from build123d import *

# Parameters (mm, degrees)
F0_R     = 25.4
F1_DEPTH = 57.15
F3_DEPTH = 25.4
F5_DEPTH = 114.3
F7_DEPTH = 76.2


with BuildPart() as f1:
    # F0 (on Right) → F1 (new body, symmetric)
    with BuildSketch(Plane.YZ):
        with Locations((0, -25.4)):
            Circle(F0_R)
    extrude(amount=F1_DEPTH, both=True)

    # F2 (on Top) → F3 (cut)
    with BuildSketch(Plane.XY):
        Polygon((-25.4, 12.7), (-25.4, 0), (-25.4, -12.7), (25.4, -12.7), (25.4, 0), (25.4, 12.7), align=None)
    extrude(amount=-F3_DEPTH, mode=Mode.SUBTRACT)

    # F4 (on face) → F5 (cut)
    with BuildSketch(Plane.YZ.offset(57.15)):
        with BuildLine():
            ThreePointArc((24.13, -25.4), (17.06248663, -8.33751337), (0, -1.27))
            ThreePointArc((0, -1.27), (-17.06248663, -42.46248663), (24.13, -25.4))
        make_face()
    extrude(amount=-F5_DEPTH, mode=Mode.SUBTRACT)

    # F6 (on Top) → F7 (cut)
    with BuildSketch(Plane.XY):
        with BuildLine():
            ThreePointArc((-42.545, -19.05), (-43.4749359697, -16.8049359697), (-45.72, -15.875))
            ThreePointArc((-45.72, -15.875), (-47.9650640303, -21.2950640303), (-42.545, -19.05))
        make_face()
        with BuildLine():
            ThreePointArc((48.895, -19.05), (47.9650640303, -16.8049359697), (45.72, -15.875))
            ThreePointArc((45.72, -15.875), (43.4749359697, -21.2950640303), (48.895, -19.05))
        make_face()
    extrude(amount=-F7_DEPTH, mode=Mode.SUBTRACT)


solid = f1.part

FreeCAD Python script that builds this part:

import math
import FreeCAD as App
import Part
import Sketcher

V = App.Vector
Q = App.Units.Quantity

doc = App.newDocument("Part")
params = doc.addObject("Spreadsheet::Sheet", "Params")
for row, (alias, value) in enumerate([
    ("sketch1_diameter", "2 in"),
    ("pad1_length", "4.5 in"),
    ("sketch2_width", "2 in"),
    ("sketch2_height", "1 in"),
    ("pocket1_length", "1 in"),
    ("sketch3_radius", "0.95 in"),
    ("pocket2_length", "4.5 in"),
    ("sketch4_radius", "0.125 in"),
    ("pocket3_length", "3 in"),
], start=1):
    params.set(f"A{row}", alias)
    params.set(f"B{row}", "=" + value)
    params.setAlias(f"B{row}", alias)

body = doc.addObject("PartDesign::Body", "Body")

sketch1 = body.newObject("Sketcher::SketchObject", "Sketch")
sketch1.AttachmentSupport = (doc.getObject("YZ_Plane"), [""])
sketch1.MapMode = "FlatFace"
sketch1.addGeometry(Part.Circle(V(0, -25, 0), V(0, 0, 1), 25), False)
sketch1.addConstraint(Sketcher.Constraint("PointOnObject", 0, 3, -2))
sketch1.addConstraint(Sketcher.Constraint("Diameter", 0, Q("2 in")))
sketch1.addConstraint(Sketcher.Constraint("DistanceY", 0, 3, -1, 1, Q("1 in")))
sketch1.setExpression("Constraints[1]", "Params.sketch1_diameter")
pad1 = body.newObject("PartDesign::Pad", "Pad")
pad1.Profile = sketch1
pad1.setExpression("Length", "Params.pad1_length")
pad1.Midplane = True

sketch2 = body.newObject("Sketcher::SketchObject", "Sketch001")
sketch2.AttachmentSupport = (doc.getObject("XY_Plane"), [""])
sketch2.MapMode = "FlatFace"
sketch2.addGeometry(Part.LineSegment(V(-25, 13, 0), V(-25, -13, 0)), False)
sketch2.addGeometry(Part.LineSegment(V(-25, -13, 0), V(25, -13, 0)), False)
sketch2.addGeometry(Part.LineSegment(V(25, -13, 0), V(25, 13, 0)), False)
sketch2.addGeometry(Part.LineSegment(V(25, 13, 0), V(-25, 13, 0)), False)
sketch2.addConstraint(Sketcher.Constraint("Coincident", 0, 2, 1, 1))
sketch2.addConstraint(Sketcher.Constraint("Coincident", 1, 2, 2, 1))
sketch2.addConstraint(Sketcher.Constraint("Coincident", 2, 2, 3, 1))
sketch2.addConstraint(Sketcher.Constraint("Coincident", 3, 2, 0, 1))
sketch2.addConstraint(Sketcher.Constraint("Vertical", 0))
sketch2.addConstraint(Sketcher.Constraint("Horizontal", 1))
sketch2.addConstraint(Sketcher.Constraint("Vertical", 2))
sketch2.addConstraint(Sketcher.Constraint("Horizontal", 3))
sketch2.addConstraint(Sketcher.Constraint("Symmetric", 0, 2, 2, 2, -1, 1))
sketch2.addConstraint(Sketcher.Constraint("DistanceX", 1, 1, 1, 2, Q("2 in")))
sketch2.addConstraint(Sketcher.Constraint("DistanceY", 0, 2, 0, 1, Q("1 in")))
sketch2.setExpression("Constraints[9]", "Params.sketch2_width")
sketch2.setExpression("Constraints[10]", "Params.sketch2_height")
pocket1 = body.newObject("PartDesign::Pocket", "Pocket")
pocket1.Profile = sketch2
pocket1.setExpression("Length", "Params.pocket1_length")

sketch3 = body.newObject("Sketcher::SketchObject", "Sketch002")
sketch3.AttachmentSupport = (doc.getObject("YZ_Plane"), [""])
sketch3.MapMode = "FlatFace"
sketch3.AttachmentOffset = App.Placement(V(0, 0, 2.25 * 25.4), App.Rotation())
sketch3.addGeometry(Part.ArcOfCircle(Part.Circle(V(0, -25, 0), V(0, 0, 1), 24), math.radians(0), math.radians(90)), False)
sketch3.addGeometry(Part.ArcOfCircle(Part.Circle(V(0, -25, 0), V(0, 0, 1), 24), math.radians(90), math.radians(360)), False)
sketch3.addConstraint(Sketcher.Constraint("Tangent", 0, 1, 1, 2))
sketch3.addConstraint(Sketcher.Constraint("Coincident", 1, 1, 0, 2))
sketch3.addConstraint(Sketcher.Constraint("PointOnObject", 0, 3, -2))
sketch3.addConstraint(Sketcher.Constraint("PointOnObject", 1, 1, -2))
sketch3.addConstraint(Sketcher.Constraint("Horizontal", 1, 3, 0, 1))
sketch3.addConstraint(Sketcher.Constraint("Radius", 0, Q("0.95 in")))
sketch3.addConstraint(Sketcher.Constraint("DistanceY", 0, 3, -1, 1, Q("1 in")))
sketch3.setExpression("Constraints[5]", "Params.sketch3_radius")
pocket2 = body.newObject("PartDesign::Pocket", "Pocket001")
pocket2.Profile = sketch3
pocket2.setExpression("Length", "Params.pocket2_length")

sketch4 = body.newObject("Sketcher::SketchObject", "Sketch003")
sketch4.AttachmentSupport = (doc.getObject("XY_Plane"), [""])
sketch4.MapMode = "FlatFace"
sketch4.addGeometry(Part.ArcOfCircle(Part.Circle(V(-45.7, -19.1, 0), V(0, 0, 1), 3.2), math.radians(0), math.radians(90)), False)
sketch4.addGeometry(Part.ArcOfCircle(Part.Circle(V(-45.7, -19.1, 0), V(0, 0, 1), 3.2), math.radians(90), math.radians(360)), False)
sketch4.addGeometry(Part.ArcOfCircle(Part.Circle(V(45.7, -19.1, 0), V(0, 0, 1), 3.2), math.radians(0), math.radians(90)), False)
sketch4.addGeometry(Part.ArcOfCircle(Part.Circle(V(45.7, -19.1, 0), V(0, 0, 1), 3.2), math.radians(90), math.radians(360)), False)
sketch4.addConstraint(Sketcher.Constraint("Tangent", 0, 1, 1, 2))
sketch4.addConstraint(Sketcher.Constraint("Coincident", 1, 1, 0, 2))
sketch4.addConstraint(Sketcher.Constraint("Tangent", 2, 1, 3, 2))
sketch4.addConstraint(Sketcher.Constraint("Coincident", 3, 1, 2, 2))
sketch4.addConstraint(Sketcher.Constraint("Equal", 1, 2))
sketch4.addConstraint(Sketcher.Constraint("Symmetric", 0, 3, 2, 3, -2))
sketch4.addConstraint(Sketcher.Constraint("Horizontal", 3, 3, 0, 1))
sketch4.addConstraint(Sketcher.Constraint("Horizontal", 0, 1, 2, 1))
sketch4.addConstraint(Sketcher.Constraint("Vertical", 0, 3, 1, 1))
sketch4.addConstraint(Sketcher.Constraint("Vertical", 2, 3, 3, 1))
sketch4.addConstraint(Sketcher.Constraint("Radius", 0, Q("0.125 in")))
sketch4.addConstraint(Sketcher.Constraint("DistanceX", 0, 3, -1, 1, Q("1.8 in")))
sketch4.addConstraint(Sketcher.Constraint("DistanceY", 0, 3, -1, 1, Q("0.75 in")))
sketch4.setExpression("Constraints[10]", "Params.sketch4_radius")
pocket3 = body.newObject("PartDesign::Pocket", "Pocket002")
pocket3.Profile = sketch4
pocket3.setExpression("Length", "Params.pocket3_length")

doc.recompute()
